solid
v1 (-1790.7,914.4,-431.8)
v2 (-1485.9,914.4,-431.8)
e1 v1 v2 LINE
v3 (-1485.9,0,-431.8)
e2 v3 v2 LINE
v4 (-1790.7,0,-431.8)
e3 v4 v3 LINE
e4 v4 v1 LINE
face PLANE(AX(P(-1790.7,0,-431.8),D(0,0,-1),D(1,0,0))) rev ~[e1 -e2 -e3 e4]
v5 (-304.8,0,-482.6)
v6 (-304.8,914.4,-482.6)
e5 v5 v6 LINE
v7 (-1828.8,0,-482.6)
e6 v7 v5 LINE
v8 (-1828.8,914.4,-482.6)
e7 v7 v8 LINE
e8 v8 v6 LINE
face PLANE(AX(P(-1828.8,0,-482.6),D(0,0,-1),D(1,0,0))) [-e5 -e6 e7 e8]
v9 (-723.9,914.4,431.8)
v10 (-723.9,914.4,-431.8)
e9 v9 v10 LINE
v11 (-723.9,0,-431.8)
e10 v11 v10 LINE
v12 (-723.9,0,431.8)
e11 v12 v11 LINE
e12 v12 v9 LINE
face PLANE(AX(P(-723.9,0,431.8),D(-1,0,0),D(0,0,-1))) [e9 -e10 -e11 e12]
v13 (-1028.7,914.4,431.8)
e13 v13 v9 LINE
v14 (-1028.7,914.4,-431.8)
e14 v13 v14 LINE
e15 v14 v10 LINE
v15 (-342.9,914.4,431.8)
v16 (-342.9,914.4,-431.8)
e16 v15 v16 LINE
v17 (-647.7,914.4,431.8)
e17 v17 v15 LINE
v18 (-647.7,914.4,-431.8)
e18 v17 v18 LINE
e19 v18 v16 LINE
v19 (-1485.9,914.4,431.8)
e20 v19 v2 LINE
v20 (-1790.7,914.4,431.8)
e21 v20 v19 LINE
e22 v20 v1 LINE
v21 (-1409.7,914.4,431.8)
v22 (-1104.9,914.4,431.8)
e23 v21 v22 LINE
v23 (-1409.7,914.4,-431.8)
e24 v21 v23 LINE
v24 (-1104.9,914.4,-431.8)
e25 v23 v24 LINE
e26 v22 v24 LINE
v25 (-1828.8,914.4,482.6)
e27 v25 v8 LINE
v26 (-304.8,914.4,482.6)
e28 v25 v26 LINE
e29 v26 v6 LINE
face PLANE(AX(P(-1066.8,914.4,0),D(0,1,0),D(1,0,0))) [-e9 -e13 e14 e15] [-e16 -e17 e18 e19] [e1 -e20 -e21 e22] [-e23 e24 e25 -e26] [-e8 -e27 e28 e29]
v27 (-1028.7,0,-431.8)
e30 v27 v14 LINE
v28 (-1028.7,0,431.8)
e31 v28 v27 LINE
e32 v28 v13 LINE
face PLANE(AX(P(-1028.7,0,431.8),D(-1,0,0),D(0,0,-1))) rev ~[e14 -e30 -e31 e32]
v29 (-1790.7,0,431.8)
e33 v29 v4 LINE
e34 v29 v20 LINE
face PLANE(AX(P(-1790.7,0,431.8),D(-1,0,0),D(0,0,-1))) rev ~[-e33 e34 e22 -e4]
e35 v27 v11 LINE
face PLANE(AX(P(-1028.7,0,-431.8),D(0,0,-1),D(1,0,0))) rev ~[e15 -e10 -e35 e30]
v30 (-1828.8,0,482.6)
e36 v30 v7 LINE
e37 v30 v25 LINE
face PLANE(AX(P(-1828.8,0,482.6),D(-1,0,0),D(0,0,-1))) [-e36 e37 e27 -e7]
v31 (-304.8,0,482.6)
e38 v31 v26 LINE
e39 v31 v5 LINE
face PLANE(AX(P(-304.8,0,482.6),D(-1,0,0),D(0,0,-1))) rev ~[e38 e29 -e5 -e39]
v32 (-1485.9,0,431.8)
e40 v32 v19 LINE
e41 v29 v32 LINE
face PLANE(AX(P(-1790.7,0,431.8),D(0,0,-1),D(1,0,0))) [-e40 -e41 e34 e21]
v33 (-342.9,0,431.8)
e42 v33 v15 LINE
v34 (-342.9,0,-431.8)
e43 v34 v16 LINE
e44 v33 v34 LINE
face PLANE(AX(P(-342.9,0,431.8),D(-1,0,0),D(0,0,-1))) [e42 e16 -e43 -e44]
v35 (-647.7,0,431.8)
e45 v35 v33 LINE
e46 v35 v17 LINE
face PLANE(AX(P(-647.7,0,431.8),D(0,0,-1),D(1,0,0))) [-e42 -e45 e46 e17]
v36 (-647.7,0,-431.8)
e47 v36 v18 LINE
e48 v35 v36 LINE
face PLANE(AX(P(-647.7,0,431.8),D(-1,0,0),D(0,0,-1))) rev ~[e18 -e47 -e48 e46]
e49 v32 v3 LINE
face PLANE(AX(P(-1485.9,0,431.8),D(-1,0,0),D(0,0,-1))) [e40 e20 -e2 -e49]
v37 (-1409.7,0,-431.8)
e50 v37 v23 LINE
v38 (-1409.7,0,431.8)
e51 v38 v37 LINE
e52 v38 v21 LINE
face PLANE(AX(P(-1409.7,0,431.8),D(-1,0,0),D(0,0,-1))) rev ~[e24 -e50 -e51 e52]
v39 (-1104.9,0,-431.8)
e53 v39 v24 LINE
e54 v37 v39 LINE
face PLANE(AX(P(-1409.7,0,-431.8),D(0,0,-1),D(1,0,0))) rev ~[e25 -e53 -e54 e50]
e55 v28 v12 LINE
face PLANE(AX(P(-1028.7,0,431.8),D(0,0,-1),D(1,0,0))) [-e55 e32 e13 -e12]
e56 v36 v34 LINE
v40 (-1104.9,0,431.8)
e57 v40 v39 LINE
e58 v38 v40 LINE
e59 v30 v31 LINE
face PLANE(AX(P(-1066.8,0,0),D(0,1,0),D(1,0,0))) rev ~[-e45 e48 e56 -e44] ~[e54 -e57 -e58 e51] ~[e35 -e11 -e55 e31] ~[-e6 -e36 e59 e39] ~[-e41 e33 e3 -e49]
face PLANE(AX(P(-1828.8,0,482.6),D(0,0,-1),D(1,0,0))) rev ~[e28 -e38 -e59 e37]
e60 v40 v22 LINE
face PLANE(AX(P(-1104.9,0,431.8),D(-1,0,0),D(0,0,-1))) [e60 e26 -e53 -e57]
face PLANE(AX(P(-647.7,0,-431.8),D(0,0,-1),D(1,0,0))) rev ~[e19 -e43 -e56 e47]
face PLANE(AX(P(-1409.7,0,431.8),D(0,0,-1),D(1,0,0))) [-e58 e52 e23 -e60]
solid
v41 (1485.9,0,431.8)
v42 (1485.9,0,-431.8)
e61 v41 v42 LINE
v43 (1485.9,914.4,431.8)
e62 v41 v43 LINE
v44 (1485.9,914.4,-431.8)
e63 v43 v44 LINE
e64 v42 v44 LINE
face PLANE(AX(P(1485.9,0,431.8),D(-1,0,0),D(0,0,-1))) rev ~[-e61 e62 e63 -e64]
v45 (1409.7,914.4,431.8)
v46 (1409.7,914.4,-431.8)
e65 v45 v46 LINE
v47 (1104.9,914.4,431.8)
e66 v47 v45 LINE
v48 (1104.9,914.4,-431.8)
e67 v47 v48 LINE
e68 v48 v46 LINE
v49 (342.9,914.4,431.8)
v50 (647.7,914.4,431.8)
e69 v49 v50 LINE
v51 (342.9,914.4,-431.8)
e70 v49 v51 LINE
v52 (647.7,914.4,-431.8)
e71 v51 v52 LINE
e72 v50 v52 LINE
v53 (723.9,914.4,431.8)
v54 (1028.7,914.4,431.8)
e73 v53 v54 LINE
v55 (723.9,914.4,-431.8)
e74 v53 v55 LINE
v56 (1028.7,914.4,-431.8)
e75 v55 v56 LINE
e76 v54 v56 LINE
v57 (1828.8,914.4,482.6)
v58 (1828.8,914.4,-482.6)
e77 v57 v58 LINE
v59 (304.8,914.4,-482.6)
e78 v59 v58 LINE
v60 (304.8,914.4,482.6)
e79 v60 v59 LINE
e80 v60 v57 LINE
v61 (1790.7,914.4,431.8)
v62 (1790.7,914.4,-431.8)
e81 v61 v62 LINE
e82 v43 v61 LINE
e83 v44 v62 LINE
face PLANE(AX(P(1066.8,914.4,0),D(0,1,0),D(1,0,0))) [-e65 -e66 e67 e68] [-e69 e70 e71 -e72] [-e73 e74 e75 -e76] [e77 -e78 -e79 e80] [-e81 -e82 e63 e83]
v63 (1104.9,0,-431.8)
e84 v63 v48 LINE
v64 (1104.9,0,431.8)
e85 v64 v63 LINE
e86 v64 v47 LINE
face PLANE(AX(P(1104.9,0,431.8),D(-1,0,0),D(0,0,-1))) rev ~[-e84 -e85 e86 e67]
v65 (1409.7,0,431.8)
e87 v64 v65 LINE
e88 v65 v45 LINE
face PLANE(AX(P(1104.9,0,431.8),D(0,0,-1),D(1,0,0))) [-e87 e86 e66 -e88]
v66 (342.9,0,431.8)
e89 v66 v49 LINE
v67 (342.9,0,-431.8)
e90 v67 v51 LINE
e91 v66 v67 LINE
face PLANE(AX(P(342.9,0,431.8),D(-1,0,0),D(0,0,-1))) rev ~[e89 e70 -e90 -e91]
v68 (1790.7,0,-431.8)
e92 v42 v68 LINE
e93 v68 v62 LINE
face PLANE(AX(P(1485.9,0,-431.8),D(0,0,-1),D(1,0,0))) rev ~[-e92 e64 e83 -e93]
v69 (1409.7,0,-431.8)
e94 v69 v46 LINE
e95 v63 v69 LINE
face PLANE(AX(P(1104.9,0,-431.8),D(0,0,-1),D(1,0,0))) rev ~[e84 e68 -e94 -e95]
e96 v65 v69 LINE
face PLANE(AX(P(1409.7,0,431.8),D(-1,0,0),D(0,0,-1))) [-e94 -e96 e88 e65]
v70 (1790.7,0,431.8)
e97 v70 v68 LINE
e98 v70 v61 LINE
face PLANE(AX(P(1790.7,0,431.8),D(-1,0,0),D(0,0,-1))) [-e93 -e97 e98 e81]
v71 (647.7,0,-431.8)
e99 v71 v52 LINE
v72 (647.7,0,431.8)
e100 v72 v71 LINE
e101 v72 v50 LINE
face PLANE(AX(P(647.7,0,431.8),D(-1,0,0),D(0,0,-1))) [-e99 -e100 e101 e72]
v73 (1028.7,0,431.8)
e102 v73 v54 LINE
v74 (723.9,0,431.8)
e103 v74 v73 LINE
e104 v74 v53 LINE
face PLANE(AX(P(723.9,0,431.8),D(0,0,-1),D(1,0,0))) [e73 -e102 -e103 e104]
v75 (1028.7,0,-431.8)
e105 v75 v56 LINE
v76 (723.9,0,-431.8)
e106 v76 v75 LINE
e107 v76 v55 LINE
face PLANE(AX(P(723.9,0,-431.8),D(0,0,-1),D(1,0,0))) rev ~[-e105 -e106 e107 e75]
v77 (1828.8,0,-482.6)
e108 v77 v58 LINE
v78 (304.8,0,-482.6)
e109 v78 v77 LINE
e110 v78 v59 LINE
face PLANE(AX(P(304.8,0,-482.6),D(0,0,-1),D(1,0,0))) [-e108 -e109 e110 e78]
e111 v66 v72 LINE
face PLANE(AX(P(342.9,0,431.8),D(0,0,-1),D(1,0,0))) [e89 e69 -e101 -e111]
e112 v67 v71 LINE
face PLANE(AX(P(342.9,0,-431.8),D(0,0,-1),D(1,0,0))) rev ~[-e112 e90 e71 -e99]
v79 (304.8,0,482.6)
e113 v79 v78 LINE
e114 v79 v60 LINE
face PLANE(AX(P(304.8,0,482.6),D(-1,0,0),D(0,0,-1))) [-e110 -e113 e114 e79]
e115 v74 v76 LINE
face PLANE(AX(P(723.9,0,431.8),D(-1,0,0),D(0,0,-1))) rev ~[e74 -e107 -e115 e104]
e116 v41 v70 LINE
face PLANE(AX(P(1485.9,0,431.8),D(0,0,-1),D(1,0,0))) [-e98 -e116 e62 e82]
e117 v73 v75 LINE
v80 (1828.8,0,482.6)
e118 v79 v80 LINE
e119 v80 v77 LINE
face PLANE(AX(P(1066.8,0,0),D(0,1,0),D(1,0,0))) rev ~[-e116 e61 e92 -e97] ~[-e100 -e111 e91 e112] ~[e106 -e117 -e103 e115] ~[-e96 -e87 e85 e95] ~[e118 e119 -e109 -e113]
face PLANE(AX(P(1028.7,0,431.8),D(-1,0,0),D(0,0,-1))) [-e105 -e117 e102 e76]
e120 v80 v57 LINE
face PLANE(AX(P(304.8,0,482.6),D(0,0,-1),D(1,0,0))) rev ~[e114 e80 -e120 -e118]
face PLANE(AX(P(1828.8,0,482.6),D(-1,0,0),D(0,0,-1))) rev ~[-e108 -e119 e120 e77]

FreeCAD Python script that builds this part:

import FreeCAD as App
import Part
import Sketcher

V = App.Vector
Q = App.Units.Quantity

doc = App.newDocument("Part")
body = doc.addObject("PartDesign::Body", "Body")

sketch1 = body.newObject("Sketcher::SketchObject", "Sketch")
sketch1.AttachmentSupport = (doc.getObject("XZ_Plane"), [""])
sketch1.MapMode = "FlatFace"
sketch1.addGeometry([
    Part.LineSegment(V(-1829, -483, 0), V(-1829, 483, 0)),
    Part.LineSegment(V(-1829, 483, 0), V(-305, 483, 0)),
    Part.LineSegment(V(-305, 483, 0), V(-305, -483, 0)),
    Part.LineSegment(V(-305, -483, 0), V(-1829, -483, 0)),
    Part.LineSegment(V(-1486, 432, 0), V(-1791, 432, 0)),
    Part.LineSegment(V(-1791, 432, 0), V(-1791, -432, 0)),
    Part.LineSegment(V(-1791, -432, 0), V(-1486, -432, 0)),
    Part.LineSegment(V(-1486, -432, 0), V(-1486, 432, 0)),
    Part.LineSegment(V(-1105, 432, 0), V(-1410, 432, 0)),
    Part.LineSegment(V(-1410, 432, 0), V(-1410, -432, 0)),
    Part.LineSegment(V(-1410, -432, 0), V(-1105, -432, 0)),
    Part.LineSegment(V(-1105, -432, 0), V(-1105, 432, 0)),
    Part.LineSegment(V(-724, 432, 0), V(-1029, 432, 0)),
    Part.LineSegment(V(-1029, 432, 0), V(-1029, -432, 0)),
    Part.LineSegment(V(-1029, -432, 0), V(-724, -432, 0)),
    Part.LineSegment(V(-724, -432, 0), V(-724, 432, 0)),
    Part.LineSegment(V(-343, 432, 0), V(-648, 432, 0)),
    Part.LineSegment(V(-648, 432, 0), V(-648, -432, 0)),
    Part.LineSegment(V(-648, -432, 0), V(-343, -432, 0)),
    Part.LineSegment(V(-343, -432, 0), V(-343, 432, 0)),
], False)
sketch1.addConstraint([
    Sketcher.Constraint("Coincident", 0, 2, 1, 1),
    Sketcher.Constraint("Coincident", 1, 2, 2, 1),
    Sketcher.Constraint("Coincident", 2, 2, 3, 1),
    Sketcher.Constraint("Coincident", 3, 2, 0, 1),
    Sketcher.Constraint("Coincident", 4, 2, 5, 1),
    Sketcher.Constraint("Coincident", 5, 2, 6, 1),
    Sketcher.Constraint("Coincident", 6, 2, 7, 1),
    Sketcher.Constraint("Coincident", 7, 2, 4, 1),
    Sketcher.Constraint("Coincident", 8, 2, 9, 1),
    Sketcher.Constraint("Coincident", 9, 2, 10, 1),
    Sketcher.Constraint("Coincident", 10, 2, 11, 1),
    Sketcher.Constraint("Coincident", 11, 2, 8, 1),
    Sketcher.Constraint("Coincident", 12, 2, 13, 1),
    Sketcher.Constraint("Coincident", 13, 2, 14, 1),
    Sketcher.Constraint("Coincident", 14, 2, 15, 1),
    Sketcher.Constraint("Coincident", 15, 2, 12, 1),
    Sketcher.Constraint("Coincident", 16, 2, 17, 1),
    Sketcher.Constraint("Coincident", 17, 2, 18, 1),
    Sketcher.Constraint("Coincident", 18, 2, 19, 1),
    Sketcher.Constraint("Coincident", 19, 2, 16, 1),
    Sketcher.Constraint("Vertical", 0),
    Sketcher.Constraint("Horizontal", 1),
    Sketcher.Constraint("Vertical", 2),
    Sketcher.Constraint("Horizontal", 3),
    Sketcher.Constraint("Horizontal", 4),
    Sketcher.Constraint("Vertical", 5),
    Sketcher.Constraint("Horizontal", 6),
    Sketcher.Constraint("Vertical", 7),
    Sketcher.Constraint("Horizontal", 8),
    Sketcher.Constraint("Vertical", 9),
    Sketcher.Constraint("Horizontal", 10),
    Sketcher.Constraint("Vertical", 11),
    Sketcher.Constraint("Horizontal", 12),
    Sketcher.Constraint("Vertical", 13),
    Sketcher.Constraint("Horizontal", 14),
    Sketcher.Constraint("Vertical", 15),
    Sketcher.Constraint("Horizontal", 16),
    Sketcher.Constraint("Vertical", 17),
    Sketcher.Constraint("Horizontal", 18),
    Sketcher.Constraint("Vertical", 19),
    Sketcher.Constraint("Horizontal", 7, 2, 8, 2),
    Sketcher.Constraint("Horizontal", 6, 2, 9, 2),
    Sketcher.Constraint("Horizontal", 11, 2, 12, 2),
    Sketcher.Constraint("Horizontal", 10, 2, 13, 2),
    Sketcher.Constraint("Horizontal", 15, 2, 16, 2),
    Sketcher.Constraint("Horizontal", 14, 2, 17, 2),
    Sketcher.Constraint("Equal", 6, 8),
    Sketcher.Constraint("Equal", 10, 12),
    Sketcher.Constraint("Equal", 14, 16),
    Sketcher.Constraint("DistanceX", 1, 1, 1, 2, Q("60 in")),
    Sketcher.Constraint("DistanceX", 4, 2, 4, 1, Q("12 in")),
    Sketcher.Constraint("DistanceY", 0, 1, 0, 2, Q("38 in")),
    Sketcher.Constraint("DistanceY", 5, 2, 5, 1, Q("34 in")),
    Sketcher.Constraint("DistanceX", 0, 2, -1, 1, Q("72 in")),
    Sketcher.Constraint("DistanceY", -1, 1, 0, 2, Q("19 in")),
    Sketcher.Constraint("DistanceY", -1, 1, 4, 2, Q("17 in")),
    Sketcher.Constraint("DistanceX", 7, 2, 8, 2, Q("3 in")),
    Sketcher.Constraint("DistanceX", 11, 2, 12, 2, Q("3 in")),
    Sketcher.Constraint("DistanceX", 15, 2, 16, 2, Q("3 in")),
    Sketcher.Constraint("DistanceX", 4, 2, -1, 1, Q("70.5 in")),
])
pad1 = body.newObject("PartDesign::Pad", "Pad")
pad1.Profile = sketch1
pad1.Length = Q("36 in")
pad1.Reversed = True
body2 = doc.addObject("PartDesign::Body", "Body001")

sketch2 = body2.newObject("Sketcher::SketchObject", "Sketch001")
sketch2.AttachmentSupport = (doc.getObject("XZ_Plane001"), [""])
sketch2.MapMode = "FlatFace"
sketch2.addGeometry([
    Part.LineSegment(V(305, -483, 0), V(305, 483, 0)),
    Part.LineSegment(V(305, 483, 0), V(1829, 483, 0)),
    Part.LineSegment(V(1829, 483, 0), V(1829, -483, 0)),
    Part.LineSegment(V(1829, -483, 0), V(305, -483, 0)),
    Part.LineSegment(V(648, 432, 0), V(343, 432, 0)),
    Part.LineSegment(V(343, 432, 0), V(343, -432, 0)),
    Part.LineSegment(V(343, -432, 0), V(648, -432, 0)),
    Part.LineSegment(V(648, -432, 0), V(648, 432, 0)),
    Part.LineSegment(V(1029, 432, 0), V(724, 432, 0)),
    Part.LineSegment(V(724, 432, 0), V(724, -432, 0)),
    Part.LineSegment(V(724, -432, 0), V(1029, -432, 0)),
    Part.LineSegment(V(1029, -432, 0), V(1029, 432, 0)),
    Part.LineSegment(V(1410, 432, 0), V(1105, 432, 0)),
    Part.LineSegment(V(1105, 432, 0), V(1105, -432, 0)),
    Part.LineSegment(V(1105, -432, 0), V(1410, -432, 0)),
    Part.LineSegment(V(1410, -432, 0), V(1410, 432, 0)),
    Part.LineSegment(V(1791, 432, 0), V(1486, 432, 0)),
    Part.LineSegment(V(1486, 432, 0), V(1486, -432, 0)),
    Part.LineSegment(V(1486, -432, 0), V(1791, -432, 0)),
    Part.LineSegment(V(1791, -432, 0), V(1791, 432, 0)),
], False)
sketch2.addConstraint([
    Sketcher.Constraint("Coincident", 0, 2, 1, 1),
    Sketcher.Constraint("Coincident", 1, 2, 2, 1),
    Sketcher.Constraint("Coincident", 2, 2, 3, 1),
    Sketcher.Constraint("Coincident", 3, 2, 0, 1),
    Sketcher.Constraint("Coincident", 4, 2, 5, 1),
    Sketcher.Constraint("Coincident", 5, 2, 6, 1),
    Sketcher.Constraint("Coincident", 6, 2, 7, 1),
    Sketcher.Constraint("Coincident", 7, 2, 4, 1),
    Sketcher.Constraint("Coincident", 8, 2, 9, 1),
    Sketcher.Constraint("Coincident", 9, 2, 10, 1),
    Sketcher.Constraint("Coincident", 10, 2, 11, 1),
    Sketcher.Constraint("Coincident", 11, 2, 8, 1),
    Sketcher.Constraint("Coincident", 12, 2, 13, 1),
    Sketcher.Constraint("Coincident", 13, 2, 14, 1),
    Sketcher.Constraint("Coincident", 14, 2, 15, 1),
    Sketcher.Constraint("Coincident", 15, 2, 12, 1),
    Sketcher.Constraint("Coincident", 16, 2, 17, 1),
    Sketcher.Constraint("Coincident", 17, 2, 18, 1),
    Sketcher.Constraint("Coincident", 18, 2, 19, 1),
    Sketcher.Constraint("Coincident", 19, 2, 16, 1),
    Sketcher.Constraint("Vertical", 0),
    Sketcher.Constraint("Horizontal", 1),
    Sketcher.Constraint("Vertical", 2),
    Sketcher.Constraint("Horizontal", 3),
    Sketcher.Constraint("Horizontal", 4),
    Sketcher.Constraint("Vertical", 5),
    Sketcher.Constraint("Horizontal", 6),
    Sketcher.Constraint("Vertical", 7),
    Sketcher.Constraint("Horizontal", 8),
    Sketcher.Constraint("Vertical", 9),
    Sketcher.Constraint("Horizontal", 10),
    Sketcher.Constraint("Vertical", 11),
    Sketcher.Constraint("Horizontal", 12),
    Sketcher.Constraint("Vertical", 13),
    Sketcher.Constraint("Horizontal", 14),
    Sketcher.Constraint("Vertical", 15),
    Sketcher.Constraint("Horizontal", 16),
    Sketcher.Constraint("Vertical", 17),
    Sketcher.Constraint("Horizontal", 18),
    Sketcher.Constraint("Vertical", 19),
    Sketcher.Constraint("Horizontal", 7, 2, 8, 2),
    Sketcher.Constraint("Horizontal", 6, 2, 9, 2),
    Sketcher.Constraint("Horizontal", 11, 2, 12, 2),
    Sketcher.Constraint("Horizontal", 10, 2, 13, 2),
    Sketcher.Constraint("Horizontal", 15, 2, 16, 2),
    Sketcher.Constraint("Horizontal", 14, 2, 17, 2),
    Sketcher.Constraint("Equal", 6, 8),
    Sketcher.Constraint("Equal", 10, 12),
    Sketcher.Constraint("Equal", 14, 16),
    Sketcher.Constraint("DistanceX", 1, 1, 1, 2, Q("60 in")),
    Sketcher.Constraint("DistanceX", 4, 2, 4, 1, Q("12 in")),
    Sketcher.Constraint("DistanceY", 0, 1, 0, 2, Q("38 in")),
    Sketcher.Constraint("DistanceY", 5, 2, 5, 1, Q("34 in")),
    Sketcher.Constraint("DistanceX", -1, 1, 0, 2, Q("12 in")),
    Sketcher.Constraint("DistanceY", -1, 1, 0, 2, Q("19 in")),
    Sketcher.Constraint("DistanceY", -1, 1, 4, 2, Q("17 in")),
    Sketcher.Constraint("DistanceX", 7, 2, 8, 2, Q("3 in")),
    Sketcher.Constraint("DistanceX", 11, 2, 12, 2, Q("3 in")),
    Sketcher.Constraint("DistanceX", 15, 2, 16, 2, Q("3 in")),
    Sketcher.Constraint("DistanceX", -1, 1, 4, 2, Q("13.5 in")),
])
pad2 = body2.newObject("PartDesign::Pad", "Pad001")
pad2.Profile = sketch2
pad2.Length = Q("36 in")
pad2.Reversed = True

doc.recompute()
